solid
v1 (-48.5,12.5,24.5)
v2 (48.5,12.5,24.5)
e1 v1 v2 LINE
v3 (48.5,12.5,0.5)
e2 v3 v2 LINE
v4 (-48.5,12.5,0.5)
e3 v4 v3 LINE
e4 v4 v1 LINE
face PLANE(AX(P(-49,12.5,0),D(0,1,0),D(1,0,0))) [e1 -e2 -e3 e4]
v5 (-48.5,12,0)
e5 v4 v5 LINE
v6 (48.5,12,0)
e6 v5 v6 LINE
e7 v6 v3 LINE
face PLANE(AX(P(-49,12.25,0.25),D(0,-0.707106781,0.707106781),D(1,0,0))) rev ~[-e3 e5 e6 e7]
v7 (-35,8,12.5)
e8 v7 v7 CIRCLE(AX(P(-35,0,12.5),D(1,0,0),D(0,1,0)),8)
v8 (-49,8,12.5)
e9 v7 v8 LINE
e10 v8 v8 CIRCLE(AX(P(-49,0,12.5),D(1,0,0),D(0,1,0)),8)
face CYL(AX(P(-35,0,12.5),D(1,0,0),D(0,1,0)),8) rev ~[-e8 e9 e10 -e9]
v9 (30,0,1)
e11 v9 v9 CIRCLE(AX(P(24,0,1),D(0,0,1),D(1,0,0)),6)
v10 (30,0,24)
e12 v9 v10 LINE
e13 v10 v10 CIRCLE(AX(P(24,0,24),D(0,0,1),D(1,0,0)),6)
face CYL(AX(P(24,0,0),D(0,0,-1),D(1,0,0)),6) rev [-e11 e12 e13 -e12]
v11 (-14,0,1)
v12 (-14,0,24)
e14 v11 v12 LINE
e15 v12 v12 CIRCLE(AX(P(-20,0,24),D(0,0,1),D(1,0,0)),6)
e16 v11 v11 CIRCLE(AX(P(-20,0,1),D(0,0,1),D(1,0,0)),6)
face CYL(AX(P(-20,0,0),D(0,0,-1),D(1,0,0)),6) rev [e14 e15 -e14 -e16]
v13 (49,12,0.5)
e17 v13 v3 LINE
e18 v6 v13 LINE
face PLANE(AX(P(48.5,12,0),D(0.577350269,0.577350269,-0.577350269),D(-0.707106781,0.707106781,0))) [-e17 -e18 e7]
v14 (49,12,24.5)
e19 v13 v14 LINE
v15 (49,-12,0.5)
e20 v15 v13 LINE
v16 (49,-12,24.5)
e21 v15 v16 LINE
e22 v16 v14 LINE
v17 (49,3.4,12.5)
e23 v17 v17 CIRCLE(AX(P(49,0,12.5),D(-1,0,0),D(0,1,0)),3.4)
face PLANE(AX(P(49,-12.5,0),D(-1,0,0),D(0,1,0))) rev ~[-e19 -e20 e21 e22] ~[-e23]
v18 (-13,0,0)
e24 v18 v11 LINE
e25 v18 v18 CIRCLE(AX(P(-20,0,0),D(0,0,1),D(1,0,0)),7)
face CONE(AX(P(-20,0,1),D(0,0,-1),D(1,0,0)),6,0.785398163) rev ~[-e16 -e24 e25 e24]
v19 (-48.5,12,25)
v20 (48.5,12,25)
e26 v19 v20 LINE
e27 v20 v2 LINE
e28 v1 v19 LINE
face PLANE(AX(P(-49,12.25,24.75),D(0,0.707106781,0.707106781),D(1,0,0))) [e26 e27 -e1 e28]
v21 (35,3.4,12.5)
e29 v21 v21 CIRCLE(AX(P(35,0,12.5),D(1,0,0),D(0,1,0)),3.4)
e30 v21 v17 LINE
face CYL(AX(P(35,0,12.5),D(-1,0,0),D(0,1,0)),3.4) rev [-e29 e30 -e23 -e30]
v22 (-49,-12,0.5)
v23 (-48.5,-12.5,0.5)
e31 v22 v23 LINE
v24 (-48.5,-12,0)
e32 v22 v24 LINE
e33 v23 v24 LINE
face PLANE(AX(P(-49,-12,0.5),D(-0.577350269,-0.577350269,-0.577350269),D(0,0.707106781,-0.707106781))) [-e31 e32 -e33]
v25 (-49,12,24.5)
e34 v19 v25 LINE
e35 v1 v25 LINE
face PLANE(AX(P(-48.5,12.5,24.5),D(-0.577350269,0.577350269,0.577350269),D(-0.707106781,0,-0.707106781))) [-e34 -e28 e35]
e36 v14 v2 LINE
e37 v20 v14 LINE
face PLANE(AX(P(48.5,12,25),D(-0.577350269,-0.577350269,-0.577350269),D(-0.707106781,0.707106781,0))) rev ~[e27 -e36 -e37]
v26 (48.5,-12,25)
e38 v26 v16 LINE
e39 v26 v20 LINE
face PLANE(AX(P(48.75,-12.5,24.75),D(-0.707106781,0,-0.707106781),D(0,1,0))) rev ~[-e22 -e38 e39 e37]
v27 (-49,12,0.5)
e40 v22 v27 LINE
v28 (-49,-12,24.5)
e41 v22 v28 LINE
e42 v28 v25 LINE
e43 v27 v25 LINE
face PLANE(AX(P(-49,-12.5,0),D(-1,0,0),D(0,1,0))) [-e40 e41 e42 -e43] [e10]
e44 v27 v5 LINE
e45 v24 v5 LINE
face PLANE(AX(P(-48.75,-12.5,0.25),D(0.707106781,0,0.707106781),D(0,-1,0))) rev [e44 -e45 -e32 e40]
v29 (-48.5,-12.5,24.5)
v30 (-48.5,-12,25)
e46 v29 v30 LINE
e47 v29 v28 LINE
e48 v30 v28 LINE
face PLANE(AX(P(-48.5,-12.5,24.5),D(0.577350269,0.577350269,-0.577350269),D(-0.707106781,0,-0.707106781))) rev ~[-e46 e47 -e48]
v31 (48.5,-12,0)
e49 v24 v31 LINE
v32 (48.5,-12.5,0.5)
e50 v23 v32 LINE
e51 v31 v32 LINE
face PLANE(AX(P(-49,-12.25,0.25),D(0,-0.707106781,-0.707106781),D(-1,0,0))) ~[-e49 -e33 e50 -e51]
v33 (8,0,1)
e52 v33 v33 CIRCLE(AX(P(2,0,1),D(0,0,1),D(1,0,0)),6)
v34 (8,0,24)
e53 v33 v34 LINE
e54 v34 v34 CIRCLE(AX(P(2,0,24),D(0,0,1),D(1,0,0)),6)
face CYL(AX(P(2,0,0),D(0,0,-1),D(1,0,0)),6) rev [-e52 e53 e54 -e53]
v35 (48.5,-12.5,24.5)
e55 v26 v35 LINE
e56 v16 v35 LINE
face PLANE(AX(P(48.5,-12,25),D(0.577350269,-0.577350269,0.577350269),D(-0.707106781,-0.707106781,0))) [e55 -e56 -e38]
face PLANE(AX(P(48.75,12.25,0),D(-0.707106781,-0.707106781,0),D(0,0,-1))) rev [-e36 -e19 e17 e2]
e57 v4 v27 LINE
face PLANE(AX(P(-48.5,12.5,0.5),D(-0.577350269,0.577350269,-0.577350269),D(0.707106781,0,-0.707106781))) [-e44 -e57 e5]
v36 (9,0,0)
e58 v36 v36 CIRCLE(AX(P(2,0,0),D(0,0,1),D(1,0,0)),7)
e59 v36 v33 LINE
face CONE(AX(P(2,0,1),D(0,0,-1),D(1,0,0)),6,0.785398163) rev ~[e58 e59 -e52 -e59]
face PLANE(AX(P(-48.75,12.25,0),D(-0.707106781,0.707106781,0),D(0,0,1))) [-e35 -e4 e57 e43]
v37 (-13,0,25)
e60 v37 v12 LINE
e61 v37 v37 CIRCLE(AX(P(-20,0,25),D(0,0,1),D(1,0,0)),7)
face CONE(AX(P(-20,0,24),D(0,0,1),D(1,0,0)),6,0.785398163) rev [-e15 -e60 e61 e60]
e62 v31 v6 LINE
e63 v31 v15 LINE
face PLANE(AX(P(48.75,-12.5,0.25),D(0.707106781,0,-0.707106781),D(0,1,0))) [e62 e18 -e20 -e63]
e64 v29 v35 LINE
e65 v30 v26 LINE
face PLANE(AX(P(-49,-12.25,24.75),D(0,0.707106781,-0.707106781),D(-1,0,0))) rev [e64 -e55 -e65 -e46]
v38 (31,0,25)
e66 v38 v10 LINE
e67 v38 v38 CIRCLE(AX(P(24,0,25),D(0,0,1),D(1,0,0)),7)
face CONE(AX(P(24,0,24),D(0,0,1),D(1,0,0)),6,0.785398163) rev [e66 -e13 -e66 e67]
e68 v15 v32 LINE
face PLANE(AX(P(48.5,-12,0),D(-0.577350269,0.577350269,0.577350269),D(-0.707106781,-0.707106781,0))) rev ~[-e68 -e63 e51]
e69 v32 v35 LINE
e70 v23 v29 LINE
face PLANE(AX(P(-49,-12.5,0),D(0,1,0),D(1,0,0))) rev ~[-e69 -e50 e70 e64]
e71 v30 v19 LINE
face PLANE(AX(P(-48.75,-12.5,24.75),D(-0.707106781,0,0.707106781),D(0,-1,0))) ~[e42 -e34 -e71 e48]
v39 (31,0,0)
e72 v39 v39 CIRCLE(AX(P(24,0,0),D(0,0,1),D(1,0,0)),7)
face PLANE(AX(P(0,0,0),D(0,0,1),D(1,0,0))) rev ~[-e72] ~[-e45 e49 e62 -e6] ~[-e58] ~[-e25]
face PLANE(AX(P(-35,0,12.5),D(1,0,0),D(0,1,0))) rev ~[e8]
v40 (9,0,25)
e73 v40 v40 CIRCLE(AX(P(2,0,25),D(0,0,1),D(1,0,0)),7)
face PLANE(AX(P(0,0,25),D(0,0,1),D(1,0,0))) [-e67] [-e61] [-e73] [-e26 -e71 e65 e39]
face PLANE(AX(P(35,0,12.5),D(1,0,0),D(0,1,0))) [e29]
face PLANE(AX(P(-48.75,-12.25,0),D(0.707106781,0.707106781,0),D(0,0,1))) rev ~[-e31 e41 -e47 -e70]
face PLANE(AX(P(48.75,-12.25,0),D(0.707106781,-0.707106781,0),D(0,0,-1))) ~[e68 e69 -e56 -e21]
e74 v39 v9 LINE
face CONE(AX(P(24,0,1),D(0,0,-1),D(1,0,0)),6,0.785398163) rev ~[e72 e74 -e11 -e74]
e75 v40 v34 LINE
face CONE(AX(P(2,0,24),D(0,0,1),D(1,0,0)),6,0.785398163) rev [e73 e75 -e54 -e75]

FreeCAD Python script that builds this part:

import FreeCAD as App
import Part
import Sketcher

V = App.Vector


def edges_at(feature, points):
    """Names of the edges that pass closest to the given points."""
    edges = feature.Shape.Edges
    near = lambda p: min(range(len(edges)), key=lambda i: edges[i].distToShape(Part.Vertex(*p))[0])
    return sorted({f"Edge{near(p) + 1}" for p in points})


def add_polygon(sketch, points):
    """Adds a closed chain of lines whose ends are joined by coincident constraints."""
    first, n = sketch.GeometryCount, len(points)
    for a, b in zip(points, points[1:] + points[:1]):
        sketch.addGeometry(Part.LineSegment(App.Vector(*a, 0), App.Vector(*b, 0)), False)
    for i in range(n):
        sketch.addConstraint(Sketcher.Constraint("Coincident", first + i, 2, first + (i + 1) % n, 1))

doc = App.newDocument("Part")
body = doc.addObject("PartDesign::Body", "Body")

# Sketch on XY plane
sketch1 = body.newObject("Sketcher::SketchObject", "Sketch")
sketch1.AttachmentSupport = (doc.getObject("XY_Plane"), [""])
sketch1.MapMode = "FlatFace"
add_polygon(sketch1, [(-49, 12), (-49, -12), (49, -12), (49, 12)])  # lines 0-3
sketch1.addGeometry(Part.Circle(V(-20, 0, 0), V(0, 0, 1), 6), False)  # 4
sketch1.addGeometry(Part.Circle(V(2, 0, 0), V(0, 0, 1), 6), False)  # 5
sketch1.addGeometry(Part.Circle(V(24, 0, 0), V(0, 0, 1), 6), False)  # 6
sketch1.addConstraint([
    Sketcher.Constraint("Vertical", 0),
    Sketcher.Constraint("Horizontal", 1),
    Sketcher.Constraint("Vertical", 2),
    Sketcher.Constraint("Horizontal", 3),
    Sketcher.Constraint("Equal", 4, 5),
    Sketcher.Constraint("Equal", 5, 6),
    Sketcher.Constraint("Symmetric", 0, 2, 2, 2, -1, 1),
    Sketcher.Constraint("PointOnObject", 4, 3, -1),
    Sketcher.Constraint("PointOnObject", 5, 3, -1),
    Sketcher.Constraint("PointOnObject", 6, 3, -1),
    Sketcher.Constraint("Diameter", 4, 12.0),
    Sketcher.Constraint("DistanceX", 1, 1, 1, 2, 98.0),
    Sketcher.Constraint("DistanceY", 0, 2, 0, 1, 25.0),
    Sketcher.Constraint("DistanceX", 4, 3, -1, 1, 20.0),
    Sketcher.Constraint("DistanceX", -1, 1, 5, 3, 2.0),
    Sketcher.Constraint("DistanceX", -1, 1, 6, 3, 24.0),
])
pad1 = body.newObject("PartDesign::Pad", "Pad")
pad1.Profile = sketch1
pad1.Length = 25

# Sketch on YZ plane
sketch2 = body.newObject("Sketcher::SketchObject", "Sketch001")
sketch2.AttachmentSupport = (doc.getObject("YZ_Plane"), [""])
sketch2.MapMode = "FlatFace"
sketch2.AttachmentOffset = App.Placement(V(0, 0, 35), App.Rotation())
sketch2.addGeometry(Part.Circle(V(0, 12.5, 0), V(0, 0, 1), 3.4), False)
sketch2.addConstraint([
    Sketcher.Constraint("PointOnObject", 0, 3, -2),
    Sketcher.Constraint("Diameter", 0, 6.8),
    Sketcher.Constraint("DistanceY", -1, 1, 0, 3, 12.5),
])
pocket1 = body.newObject("PartDesign::Pocket", "Pocket")
pocket1.Profile = sketch2
pocket1.Length = 85
pocket1.Reversed = True

# Sketch on YZ plane
sketch3 = body.newObject("Sketcher::SketchObject", "Sketch002")
sketch3.AttachmentSupport = (doc.getObject("YZ_Plane"), [""])
sketch3.MapMode = "FlatFace"
sketch3.AttachmentOffset = App.Placement(V(0, 0, -35), App.Rotation())
sketch3.addGeometry(Part.Circle(V(0, 12, 0), V(0, 0, 1), 8), False)
sketch3.addConstraint([
    Sketcher.Constraint("PointOnObject", 0, 3, -2),
    Sketcher.Constraint("Diameter", 0, 16.0),
    Sketcher.Constraint("DistanceY", -1, 1, 0, 3, 12.5),
])
pocket2 = body.newObject("PartDesign::Pocket", "Pocket001")
pocket2.Profile = sketch3
pocket2.Length = 65
doc.recompute()

chamfer = body.newObject("PartDesign::Chamfer", "Chamfer")
chamfer.Base = (pocket2, edges_at(pocket2, [
    (49, 12.5, 12.5),
    (49, -12.5, 12.5),
    (49, 0, 0),
    (49, 0, 25),
    (-49, 0, 25),
    (0, 12.5, 25),
    (0, -12.5, 25),
    (0, -12.5, 0),
    (-49, -12.5, 12.5),
    (-49, 0, 0),
    (-49, 12.5, 12.5),
    (0, 12.5, 0),
]))
chamfer.Size = 0.5
doc.recompute()

chamfer2 = body.newObject("PartDesign::Chamfer", "Chamfer001")
chamfer2.Base = (chamfer, edges_at(chamfer, [
    (-4, 0, 0),
    (18, 0, 0),
    (-26, 0, 0),
    (-26, 0, 25),
    (-4, 0, 25),
    (18, 0, 25),
]))
chamfer2.Size = 1

doc.recompute()
